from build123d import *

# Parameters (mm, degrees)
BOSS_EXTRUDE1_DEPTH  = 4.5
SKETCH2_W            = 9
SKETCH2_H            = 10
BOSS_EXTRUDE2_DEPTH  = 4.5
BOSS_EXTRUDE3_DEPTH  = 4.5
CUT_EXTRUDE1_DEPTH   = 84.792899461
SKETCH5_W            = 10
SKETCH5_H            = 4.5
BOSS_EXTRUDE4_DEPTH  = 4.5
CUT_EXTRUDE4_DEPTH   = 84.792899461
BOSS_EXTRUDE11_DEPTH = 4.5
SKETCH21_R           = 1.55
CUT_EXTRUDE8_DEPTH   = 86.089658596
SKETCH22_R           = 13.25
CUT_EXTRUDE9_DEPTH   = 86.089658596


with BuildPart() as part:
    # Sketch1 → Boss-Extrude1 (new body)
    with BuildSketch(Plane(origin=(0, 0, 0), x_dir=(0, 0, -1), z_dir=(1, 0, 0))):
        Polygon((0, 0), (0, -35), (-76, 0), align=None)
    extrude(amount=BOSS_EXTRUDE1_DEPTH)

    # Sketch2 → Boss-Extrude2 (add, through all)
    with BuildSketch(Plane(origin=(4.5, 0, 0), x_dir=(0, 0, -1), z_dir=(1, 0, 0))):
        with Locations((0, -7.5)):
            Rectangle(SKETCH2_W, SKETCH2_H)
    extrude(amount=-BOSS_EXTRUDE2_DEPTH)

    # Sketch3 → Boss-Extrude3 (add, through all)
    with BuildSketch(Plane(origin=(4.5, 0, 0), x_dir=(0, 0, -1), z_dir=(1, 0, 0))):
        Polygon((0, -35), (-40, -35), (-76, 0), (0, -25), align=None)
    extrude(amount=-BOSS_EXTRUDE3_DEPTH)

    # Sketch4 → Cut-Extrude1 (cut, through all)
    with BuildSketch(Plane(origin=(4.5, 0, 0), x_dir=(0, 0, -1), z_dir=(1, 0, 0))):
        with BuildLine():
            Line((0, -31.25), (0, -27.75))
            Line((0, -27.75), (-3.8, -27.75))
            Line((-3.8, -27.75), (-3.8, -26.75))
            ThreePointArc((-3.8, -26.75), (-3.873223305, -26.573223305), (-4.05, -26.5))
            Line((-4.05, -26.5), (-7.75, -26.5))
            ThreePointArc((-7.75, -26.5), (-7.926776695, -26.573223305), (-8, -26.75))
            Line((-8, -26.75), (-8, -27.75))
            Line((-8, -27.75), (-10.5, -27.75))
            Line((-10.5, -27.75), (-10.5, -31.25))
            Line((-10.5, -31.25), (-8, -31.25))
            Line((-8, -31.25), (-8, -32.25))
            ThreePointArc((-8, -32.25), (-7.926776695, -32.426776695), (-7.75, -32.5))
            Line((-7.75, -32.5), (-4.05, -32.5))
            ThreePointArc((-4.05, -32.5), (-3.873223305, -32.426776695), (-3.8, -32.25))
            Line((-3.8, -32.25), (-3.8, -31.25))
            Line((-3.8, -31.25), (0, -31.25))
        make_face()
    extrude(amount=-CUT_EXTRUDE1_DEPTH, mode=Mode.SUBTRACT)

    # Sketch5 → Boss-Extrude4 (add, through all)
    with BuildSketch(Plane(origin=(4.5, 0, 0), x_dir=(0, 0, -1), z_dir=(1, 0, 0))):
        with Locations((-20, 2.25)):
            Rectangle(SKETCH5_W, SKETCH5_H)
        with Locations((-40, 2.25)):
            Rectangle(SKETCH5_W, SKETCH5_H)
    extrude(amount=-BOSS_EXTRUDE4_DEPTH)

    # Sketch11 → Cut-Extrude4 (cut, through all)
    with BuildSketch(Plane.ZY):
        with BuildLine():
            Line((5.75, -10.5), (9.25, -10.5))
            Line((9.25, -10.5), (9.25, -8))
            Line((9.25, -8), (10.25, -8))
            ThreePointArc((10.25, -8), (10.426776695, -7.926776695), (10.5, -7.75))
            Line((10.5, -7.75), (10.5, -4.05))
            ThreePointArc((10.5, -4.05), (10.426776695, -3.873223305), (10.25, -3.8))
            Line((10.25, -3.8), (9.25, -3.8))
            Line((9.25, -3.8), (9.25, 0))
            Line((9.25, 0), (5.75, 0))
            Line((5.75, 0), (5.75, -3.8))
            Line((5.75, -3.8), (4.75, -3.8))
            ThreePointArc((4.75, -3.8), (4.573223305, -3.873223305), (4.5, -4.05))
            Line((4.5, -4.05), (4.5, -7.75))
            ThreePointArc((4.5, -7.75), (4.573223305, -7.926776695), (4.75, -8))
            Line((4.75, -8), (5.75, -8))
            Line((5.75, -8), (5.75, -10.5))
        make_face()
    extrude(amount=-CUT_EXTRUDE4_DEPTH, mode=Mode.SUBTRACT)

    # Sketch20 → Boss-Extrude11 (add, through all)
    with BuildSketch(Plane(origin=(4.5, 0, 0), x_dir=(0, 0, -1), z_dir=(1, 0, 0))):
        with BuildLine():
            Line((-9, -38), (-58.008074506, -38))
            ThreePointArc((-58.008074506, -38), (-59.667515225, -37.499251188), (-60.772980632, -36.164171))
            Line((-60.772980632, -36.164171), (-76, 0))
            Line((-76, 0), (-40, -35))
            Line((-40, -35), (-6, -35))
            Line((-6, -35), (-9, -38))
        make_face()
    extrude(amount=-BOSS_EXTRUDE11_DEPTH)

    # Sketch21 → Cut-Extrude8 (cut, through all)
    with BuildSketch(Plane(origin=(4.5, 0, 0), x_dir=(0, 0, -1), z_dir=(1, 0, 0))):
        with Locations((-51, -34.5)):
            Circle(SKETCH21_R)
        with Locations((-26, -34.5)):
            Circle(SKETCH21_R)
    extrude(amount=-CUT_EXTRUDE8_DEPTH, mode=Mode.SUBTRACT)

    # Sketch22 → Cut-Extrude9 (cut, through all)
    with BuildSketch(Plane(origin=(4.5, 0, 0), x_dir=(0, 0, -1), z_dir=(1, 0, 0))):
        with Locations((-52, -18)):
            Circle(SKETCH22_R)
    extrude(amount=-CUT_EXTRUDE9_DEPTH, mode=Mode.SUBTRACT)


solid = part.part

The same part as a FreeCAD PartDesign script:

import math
import FreeCAD as App
import Part
import Sketcher

V = App.Vector
Q = App.Units.Quantity


def add_polygon(sketch, points):
    """Adds a closed chain of lines whose ends are joined by coincident constraints."""
    first, n = sketch.GeometryCount, len(points)
    for a, b in zip(points, points[1:] + points[:1]):
        sketch.addGeometry(Part.LineSegment(App.Vector(*a, 0), App.Vector(*b, 0)), False)
    for i in range(n):
        sketch.addConstraint(Sketcher.Constraint("Coincident", first + i, 2, first + (i + 1) % n, 1))

doc = App.newDocument("Part")
body = doc.addObject("PartDesign::Body", "Body")

# Sketch on YZ plane
sketch1 = body.newObject("Sketcher::SketchObject", "Sketch")
sketch1.AttachmentSupport = (doc.getObject("YZ_Plane"), [""])
sketch1.MapMode = "FlatFace"
add_polygon(sketch1, [(-35, 0), (0, 0), (0, 76)])  # lines 0-2
sketch1.addConstraint([
    Sketcher.Constraint("Horizontal", 0),
    Sketcher.Constraint("Vertical", 1),
    Sketcher.Constraint("Coincident", 0, 2, -1, 1),
    Sketcher.Constraint("DistanceX", 0, 1, 0, 2, 35.0),
    Sketcher.Constraint("DistanceY", 1, 1, 1, 2, 76.0),
])
pad1 = body.newObject("PartDesign::Pad", "Pad")
pad1.Profile = sketch1
pad1.Length = 4.5

# Sketch on YZ plane
sketch2 = body.newObject("Sketcher::SketchObject", "Sketch001")
sketch2.AttachmentSupport = (doc.getObject("YZ_Plane"), [""])
sketch2.MapMode = "FlatFace"
sketch2.AttachmentOffset = App.Placement(V(0, 0, 4.5), App.Rotation())
add_polygon(sketch2, [(-2, 4), (-12, 4), (-12, -4), (-2, -4)])  # lines 0-3
sketch2.addConstraint([
    Sketcher.Constraint("Horizontal", 0),
    Sketcher.Constraint("Vertical", 1),
    Sketcher.Constraint("Horizontal", 2),
    Sketcher.Constraint("Vertical", 3),
    Sketcher.Constraint("DistanceX", 0, 2, 0, 1, 10.0),
    Sketcher.Constraint("DistanceY", 1, 2, 1, 1, 9.0),
    Sketcher.Constraint("DistanceX", 0, 2, -1, 1, 12.5),
    Sketcher.Constraint("DistanceY", -1, 1, 0, 2, 4.5),
])
pad2 = body.newObject("PartDesign::Pad", "Pad001")
pad2.Profile = sketch2
pad2.Type = "UpToLast"
pad2.Reversed = True

# Sketch on YZ plane
sketch3 = body.newObject("Sketcher::SketchObject", "Sketch002")
sketch3.AttachmentSupport = (doc.getObject("YZ_Plane"), [""])
sketch3.MapMode = "FlatFace"
sketch3.AttachmentOffset = App.Placement(V(0, 0, 4.5), App.Rotation())
add_polygon(sketch3, [(-35, 40), (-35, 0), (-25, 0), (0, 76)])  # lines 0-3
sketch3.addConstraint([
    Sketcher.Constraint("Vertical", 0),
    Sketcher.Constraint("Horizontal", 1),
    Sketcher.Constraint("PointOnObject", 0, 2, -1),
    Sketcher.Constraint("PointOnObject", 2, 2, -2),
    Sketcher.Constraint("DistanceX", 1, 1, 1, 2, 10.0),
    Sketcher.Constraint("DistanceY", 0, 2, 0, 1, 40.0),
    Sketcher.Constraint("DistanceX", 0, 2, -1, 1, 35.0),
    Sketcher.Constraint("DistanceY", -1, 1, 2, 2, 76.0),
])
pad3 = body.newObject("PartDesign::Pad", "Pad002")
pad3.Profile = sketch3
pad3.Length = 4.5
pad3.Reversed = True

# Sketch on YZ plane
sketch4 = body.newObject("Sketcher::SketchObject", "Sketch003")
sketch4.AttachmentSupport = (doc.getObject("YZ_Plane"), [""])
sketch4.MapMode = "FlatFace"
sketch4.AttachmentOffset = App.Placement(V(0, 0, 4.5), App.Rotation())
sketch4.addGeometry([
    Part.LineSegment(V(-31.25, 0, 0), V(-27.75, 0, 0)),  # 0
    Part.LineSegment(V(-27.75, 0, 0), V(-27.75, 3.8, 0)),  # 1
    Part.LineSegment(V(-27.75, 3.8, 0), V(-26.75, 3.8, 0)),  # 2
    Part.ArcOfCircle(Part.Circle(V(-26.75, 4.05, 0), V(0, 0, 1), 0.25), math.radians(-90), math.radians(0)),  # 3
    Part.LineSegment(V(-26.5, 4.05, 0), V(-26.5, 7.75, 0)),  # 4
    Part.ArcOfCircle(Part.Circle(V(-26.75, 7.75, 0), V(0, 0, 1), 0.25), math.radians(0), math.radians(90)),  # 5
    Part.LineSegment(V(-26.75, 8, 0), V(-27.75, 8, 0)),  # 6
    Part.LineSegment(V(-27.75, 8, 0), V(-27.75, 10.5, 0)),  # 7
    Part.LineSegment(V(-27.75, 10.5, 0), V(-31.25, 10.5, 0)),  # 8
    Part.LineSegment(V(-31.25, 10.5, 0), V(-31.25, 8, 0)),  # 9
    Part.LineSegment(V(-31.25, 8, 0), V(-32.25, 8, 0)),  # 10
    Part.ArcOfCircle(Part.Circle(V(-32.25, 7.75, 0), V(0, 0, 1), 0.25), math.radians(90), math.radians(180)),  # 11
    Part.LineSegment(V(-32.5, 7.75, 0), V(-32.5, 4.05, 0)),  # 12
    Part.ArcOfCircle(Part.Circle(V(-32.25, 4.05, 0), V(0, 0, 1), 0.25), math.radians(-180), math.radians(-90)),  # 13
    Part.LineSegment(V(-32.25, 3.8, 0), V(-31.25, 3.8, 0)),  # 14
    Part.LineSegment(V(-31.25, 3.8, 0), V(-31.25, 0, 0)),  # 15
], False)
sketch4.addConstraint([
    Sketcher.Constraint("Coincident", 0, 2, 1, 1),
    Sketcher.Constraint("Coincident", 1, 2, 2, 1),
    Sketcher.Constraint("Tangent", 2, 2, 3, 1),
    Sketcher.Constraint("Tangent", 3, 2, 4, 1),
    Sketcher.Constraint("Tangent", 4, 2, 5, 1),
    Sketcher.Constraint("Tangent", 5, 2, 6, 1),
    Sketcher.Constraint("Coincident", 6, 2, 7, 1),
    Sketcher.Constraint("Coincident", 7, 2, 8, 1),
    Sketcher.Constraint("Coincident", 8, 2, 9, 1),
    Sketcher.Constraint("Coincident", 9, 2, 10, 1),
    Sketcher.Constraint("Tangent", 10, 2, 11, 1),
    Sketcher.Constraint("Tangent", 11, 2, 12, 1),
    Sketcher.Constraint("Tangent", 12, 2, 13, 1),
    Sketcher.Constraint("Tangent", 13, 2, 14, 1),
    Sketcher.Constraint("Coincident", 14, 2, 15, 1),
    Sketcher.Constraint("Coincident", 15, 2, 0, 1),
    Sketcher.Constraint("Horizontal", 0),
    Sketcher.Constraint("Vertical", 1),
    Sketcher.Constraint("Horizontal", 2),
    Sketcher.Constraint("Vertical", 4),
    Sketcher.Constraint("Horizontal", 6),
    Sketcher.Constraint("Vertical", 7),
    Sketcher.Constraint("Horizontal", 8),
    Sketcher.Constraint("Vertical", 9),
    Sketcher.Constraint("Horizontal", 10),
    Sketcher.Constraint("Vertical", 12),
    Sketcher.Constraint("Horizontal", 14),
    Sketcher.Constraint("Vertical", 15),
    Sketcher.Constraint("Equal", 3, 5),
    Sketcher.Constraint("Equal", 5, 11),
    Sketcher.Constraint("Equal", 11, 13),
    Sketcher.Constraint("PointOnObject", 0, 2, -1),
    Sketcher.Constraint("Horizontal", 5, 3, 11, 3),
    Sketcher.Constraint("Horizontal", 3, 3, 13, 3),
    Sketcher.Constraint("Vertical", 1, 2, 6, 2),
    Sketcher.Constraint("Vertical", 9, 2, 14, 2),
    Sketcher.Constraint("Equal", 6, 10),
    Sketcher.Constraint("DistanceX", 2, 1, 2, 2, 1.0),
    Sketcher.Constraint("Radius", 3, 0.25),
    Sketcher.Constraint("DistanceX", 0, 1, 0, 2, 3.5),
    Sketcher.Constraint("DistanceY", 1, 1, 1, 2, 3.8),
    Sketcher.Constraint("DistanceY", 4, 1, 4, 2, 3.7),
    Sketcher.Constraint("DistanceY", 7, 1, 7, 2, 2.5),
    Sketcher.Constraint("DistanceX", 3, 2, -1, 1, 26.5),
])
pocket1 = body.newObject("PartDesign::Pocket", "Pocket")
pocket1.Profile = sketch4
pocket1.Type = "ThroughAll"

# Sketch on YZ plane
sketch5 = body.newObject("Sketcher::SketchObject", "Sketch004")
sketch5.AttachmentSupport = (doc.getObject("YZ_Plane"), [""])
sketch5.MapMode = "FlatFace"
sketch5.AttachmentOffset = App.Placement(V(0, 0, 4.5), App.Rotation())
add_polygon(sketch5, [(4.5, 25), (0, 25), (0, 15), (4.5, 15)])  # lines 0-3
add_polygon(sketch5, [(4.5, 45), (0, 45), (0, 35), (4.5, 35)])  # lines 4-7
sketch5.addConstraint([
    Sketcher.Constraint("Horizontal", 0),
    Sketcher.Constraint("Vertical", 1),
    Sketcher.Constraint("Horizontal", 2),
    Sketcher.Constraint("Vertical", 3),
    Sketcher.Constraint("Horizontal", 4),
    Sketcher.Constraint("Vertical", 5),
    Sketcher.Constraint("Horizontal", 6),
    Sketcher.Constraint("Vertical", 7),
    Sketcher.Constraint("PointOnObject", 0, 2, -2),
    Sketcher.Constraint("PointOnObject", 4, 2, -2),
    Sketcher.Constraint("Vertical", 3, 2, 6, 2),
    Sketcher.Constraint("Equal", 3, 5),
    Sketcher.Constraint("DistanceY", 1, 2, 1, 1, 10.0),
    Sketcher.Constraint("DistanceX", 0, 2, 0, 1, 4.5),
    Sketcher.Constraint("DistanceY", -1, 1, 0, 2, 25.0),
    Sketcher.Constraint("DistanceY", -1, 1, 4, 2, 45.0),
])
pad4 = body.newObject("PartDesign::Pad", "Pad003")
pad4.Profile = sketch5
pad4.Length = 4.5
pad4.Reversed = True

# Sketch on YZ plane
sketch6 = body.newObject("Sketcher::SketchObject", "Sketch005")
sketch6.AttachmentSupport = (doc.getObject("YZ_Plane"), [""])
sketch6.MapMode = "FlatFace"
sketch6.addGeometry([
    Part.LineSegment(V(-10.5, 5.75, 0), V(-10.5, 9.25, 0)),  # 0
    Part.LineSegment(V(-10.5, 9.25, 0), V(-8, 9.25, 0)),  # 1
    Part.LineSegment(V(-8, 9.25, 0), V(-8, 10.25, 0)),  # 2
    Part.ArcOfCircle(Part.Circle(V(-7.75, 10.25, 0), V(0, 0, 1), 0.25), math.radians(90), math.radians(180)),  # 3
    Part.LineSegment(V(-7.75, 10.5, 0), V(-4.05, 10.5, 0)),  # 4
    Part.ArcOfCircle(Part.Circle(V(-4.05, 10.25, 0), V(0, 0, 1), 0.25), math.radians(0), math.radians(90)),  # 5
    Part.LineSegment(V(-3.8, 10.25, 0), V(-3.8, 9.25, 0)),  # 6
    Part.LineSegment(V(-3.8, 9.25, 0), V(0, 9.25, 0)),  # 7
    Part.LineSegment(V(0, 9.25, 0), V(0, 5.75, 0)),  # 8
    Part.LineSegment(V(0, 5.75, 0), V(-3.8, 5.75, 0)),  # 9
    Part.LineSegment(V(-3.8, 5.75, 0), V(-3.8, 4.75, 0)),  # 10
    Part.ArcOfCircle(Part.Circle(V(-4.05, 4.75, 0), V(0, 0, 1), 0.25), math.radians(-90), math.radians(0)),  # 11
    Part.LineSegment(V(-4.05, 4.5, 0), V(-7.75, 4.5, 0)),  # 12
    Part.ArcOfCircle(Part.Circle(V(-7.75, 4.75, 0), V(0, 0, 1), 0.25), math.radians(-180), math.radians(-90)),  # 13
    Part.LineSegment(V(-8, 4.75, 0), V(-8, 5.75, 0)),  # 14
    Part.LineSegment(V(-8, 5.75, 0), V(-10.5, 5.75, 0)),  # 15
], False)
sketch6.addConstraint([
    Sketcher.Constraint("Coincident", 0, 2, 1, 1),
    Sketcher.Constraint("Coincident", 1, 2, 2, 1),
    Sketcher.Constraint("Tangent", 2, 2, 3, 2),
    Sketcher.Constraint("Tangent", 3, 1, 4, 1),
    Sketcher.Constraint("Tangent", 4, 2, 5, 2),
    Sketcher.Constraint("Tangent", 5, 1, 6, 1),
    Sketcher.Constraint("Coincident", 6, 2, 7, 1),
    Sketcher.Constraint("Coincident", 7, 2, 8, 1),
    Sketcher.Constraint("Coincident", 8, 2, 9, 1),
    Sketcher.Constraint("Coincident", 9, 2, 10, 1),
    Sketcher.Constraint("Tangent", 10, 2, 11, 2),
    Sketcher.Constraint("Tangent", 11, 1, 12, 1),
    Sketcher.Constraint("Tangent", 12, 2, 13, 2),
    Sketcher.Constraint("Tangent", 13, 1, 14, 1),
    Sketcher.Constraint("Coincident", 14, 2, 15, 1),
    Sketcher.Constraint("Coincident", 15, 2, 0, 1),
    Sketcher.Constraint("Vertical", 0),
    Sketcher.Constraint("Horizontal", 1),
    Sketcher.Constraint("Vertical", 2),
    Sketcher.Constraint("Horizontal", 4),
    Sketcher.Constraint("Vertical", 6),
    Sketcher.Constraint("Horizontal", 7),
    Sketcher.Constraint("Vertical", 8),
    Sketcher.Constraint("Horizontal", 9),
    Sketcher.Constraint("Vertical", 10),
    Sketcher.Constraint("Horizontal", 12),
    Sketcher.Constraint("Vertical", 14),
    Sketcher.Constraint("Horizontal", 15),
    Sketcher.Constraint("Equal", 3, 5),
    Sketcher.Constraint("Equal", 5, 11),
    Sketcher.Constraint("Equal", 11, 13),
    Sketcher.Constraint("PointOnObject", 7, 2, -2),
    Sketcher.Constraint("Horizontal", 1, 2, 6, 2),
    Sketcher.Constraint("Horizontal", 9, 2, 14, 2),
    Sketcher.Constraint("Vertical", 5, 3, 11, 3),
    Sketcher.Constraint("Vertical", 3, 3, 13, 3),
    Sketcher.Constraint("Equal", 6, 10),
    Sketcher.Constraint("DistanceY", 2, 1, 2, 2, 1.0),
    Sketcher.Constraint("Radius", 3, 0.25),
    Sketcher.Constraint("DistanceX", 1, 1, 1, 2, 2.5),
    Sketcher.Constraint("DistanceX", 4, 1, 4, 2, 3.7),
    Sketcher.Constraint("DistanceX", 7, 1, 7, 2, 3.8),
    Sketcher.Constraint("DistanceY", 0, 1, 0, 2, 3.5),
    Sketcher.Constraint("DistanceY", -1, 1, 3, 1, 10.5),
])
pocket2 = body.newObject("PartDesign::Pocket", "Pocket001")
pocket2.Profile = sketch6
pocket2.Type = "ThroughAll"
pocket2.Reversed = True

# Sketch on YZ plane
sketch7 = body.newObject("Sketcher::SketchObject", "Sketch006")
sketch7.AttachmentSupport = (doc.getObject("YZ_Plane"), [""])
sketch7.MapMode = "FlatFace"
sketch7.AttachmentOffset = App.Placement(V(0, 0, 4.5), App.Rotation())
sketch7.addGeometry([
    Part.LineSegment(V(-38, 58, 0), V(-38, 9, 0)),  # 0
    Part.LineSegment(V(-38, 9, 0), V(-35, 6, 0)),  # 1
    Part.LineSegment(V(-35, 6, 0), V(-35, 40, 0)),  # 2
    Part.LineSegment(V(-35, 40, 0), V(0, 76, 0)),  # 3
    Part.LineSegment(V(0, 76, 0), V(-36.2, 60.8, 0)),  # 4
    Part.ArcOfCircle(Part.Circle(V(-35, 58, 0), V(0, 0, 1), 3), math.radians(113), math.radians(180)),  # 5
], False)
sketch7.addConstraint([
    Sketcher.Constraint("Coincident", 0, 2, 1, 1),
    Sketcher.Constraint("Coincident", 1, 2, 2, 1),
    Sketcher.Constraint("Coincident", 2, 2, 3, 1),
    Sketcher.Constraint("Coincident", 3, 2, 4, 1),
    Sketcher.Constraint("Tangent", 4, 2, 5, 1),
    Sketcher.Constraint("Tangent", 5, 2, 0, 1),
    Sketcher.Constraint("Vertical", 0),
    Sketcher.Constraint("Vertical", 2),
    Sketcher.Constraint("PointOnObject", 3, 2, -2),
    Sketcher.Constraint("Vertical", 5, 3, 1, 2),
    Sketcher.Constraint("Radius", 5, 3.0),
    Sketcher.Constraint("DistanceY", 2, 1, 2, 2, 34.0),
    Sketcher.Constraint("Angle", 1, Q("-45 deg")),
    Sketcher.Constraint("DistanceX", 5, 3, -1, 1, 35.0),
    Sketcher.Constraint("DistanceY", -1, 1, 0, 2, 9.0),
    Sketcher.Constraint("DistanceY", -1, 1, 3, 2, 76.0),
    Sketcher.Constraint("Distance", 4, 39.239131),
])
pad5 = body.newObject("PartDesign::Pad", "Pad004")
pad5.Profile = sketch7
pad5.Length = 4.5
pad5.Reversed = True

# Sketch on YZ plane
sketch8 = body.newObject("Sketcher::SketchObject", "Sketch007")
sketch8.AttachmentSupport = (doc.getObject("YZ_Plane"), [""])
sketch8.MapMode = "FlatFace"
sketch8.AttachmentOffset = App.Placement(V(0, 0, 4.5), App.Rotation())
sketch8.addGeometry([
    Part.Circle(V(-34.5, 51, 0), V(0, 0, 1), 1.6),
    Part.Circle(V(-34.5, 26, 0), V(0, 0, 1), 1.6),
], False)
sketch8.addConstraint([
    Sketcher.Constraint("Equal", 0, 1),
    Sketcher.Constraint("Vertical", 0, 3, 1, 3),
    Sketcher.Constraint("Diameter", 0, 3.1),
    Sketcher.Constraint("DistanceY", -1, 1, 0, 3, 51.0),
    Sketcher.Constraint("DistanceY", -1, 1, 1, 3, 26.0),
    Sketcher.Constraint("DistanceX", 0, 3, -1, 1, 34.5),
])
pocket3 = body.newObject("PartDesign::Pocket", "Pocket002")
pocket3.Profile = sketch8
pocket3.Type = "ThroughAll"

# Sketch on YZ plane
sketch9 = body.newObject("Sketcher::SketchObject", "Sketch008")
sketch9.AttachmentSupport = (doc.getObject("YZ_Plane"), [""])
sketch9.MapMode = "FlatFace"
sketch9.AttachmentOffset = App.Placement(V(0, 0, 4.5), App.Rotation())
sketch9.addGeometry(Part.Circle(V(-18, 52, 0), V(0, 0, 1), 13), False)
sketch9.addConstraint([
    Sketcher.Constraint("Diameter", 0, 26.5),
    Sketcher.Constraint("DistanceX", 0, 3, -1, 1, 18.0),
    Sketcher.Constraint("DistanceY", -1, 1, 0, 3, 52.0),
])
pocket4 = body.newObject("PartDesign::Pocket", "Pocket003")
pocket4.Profile = sketch9
pocket4.Type = "ThroughAll"

doc.recompute()
